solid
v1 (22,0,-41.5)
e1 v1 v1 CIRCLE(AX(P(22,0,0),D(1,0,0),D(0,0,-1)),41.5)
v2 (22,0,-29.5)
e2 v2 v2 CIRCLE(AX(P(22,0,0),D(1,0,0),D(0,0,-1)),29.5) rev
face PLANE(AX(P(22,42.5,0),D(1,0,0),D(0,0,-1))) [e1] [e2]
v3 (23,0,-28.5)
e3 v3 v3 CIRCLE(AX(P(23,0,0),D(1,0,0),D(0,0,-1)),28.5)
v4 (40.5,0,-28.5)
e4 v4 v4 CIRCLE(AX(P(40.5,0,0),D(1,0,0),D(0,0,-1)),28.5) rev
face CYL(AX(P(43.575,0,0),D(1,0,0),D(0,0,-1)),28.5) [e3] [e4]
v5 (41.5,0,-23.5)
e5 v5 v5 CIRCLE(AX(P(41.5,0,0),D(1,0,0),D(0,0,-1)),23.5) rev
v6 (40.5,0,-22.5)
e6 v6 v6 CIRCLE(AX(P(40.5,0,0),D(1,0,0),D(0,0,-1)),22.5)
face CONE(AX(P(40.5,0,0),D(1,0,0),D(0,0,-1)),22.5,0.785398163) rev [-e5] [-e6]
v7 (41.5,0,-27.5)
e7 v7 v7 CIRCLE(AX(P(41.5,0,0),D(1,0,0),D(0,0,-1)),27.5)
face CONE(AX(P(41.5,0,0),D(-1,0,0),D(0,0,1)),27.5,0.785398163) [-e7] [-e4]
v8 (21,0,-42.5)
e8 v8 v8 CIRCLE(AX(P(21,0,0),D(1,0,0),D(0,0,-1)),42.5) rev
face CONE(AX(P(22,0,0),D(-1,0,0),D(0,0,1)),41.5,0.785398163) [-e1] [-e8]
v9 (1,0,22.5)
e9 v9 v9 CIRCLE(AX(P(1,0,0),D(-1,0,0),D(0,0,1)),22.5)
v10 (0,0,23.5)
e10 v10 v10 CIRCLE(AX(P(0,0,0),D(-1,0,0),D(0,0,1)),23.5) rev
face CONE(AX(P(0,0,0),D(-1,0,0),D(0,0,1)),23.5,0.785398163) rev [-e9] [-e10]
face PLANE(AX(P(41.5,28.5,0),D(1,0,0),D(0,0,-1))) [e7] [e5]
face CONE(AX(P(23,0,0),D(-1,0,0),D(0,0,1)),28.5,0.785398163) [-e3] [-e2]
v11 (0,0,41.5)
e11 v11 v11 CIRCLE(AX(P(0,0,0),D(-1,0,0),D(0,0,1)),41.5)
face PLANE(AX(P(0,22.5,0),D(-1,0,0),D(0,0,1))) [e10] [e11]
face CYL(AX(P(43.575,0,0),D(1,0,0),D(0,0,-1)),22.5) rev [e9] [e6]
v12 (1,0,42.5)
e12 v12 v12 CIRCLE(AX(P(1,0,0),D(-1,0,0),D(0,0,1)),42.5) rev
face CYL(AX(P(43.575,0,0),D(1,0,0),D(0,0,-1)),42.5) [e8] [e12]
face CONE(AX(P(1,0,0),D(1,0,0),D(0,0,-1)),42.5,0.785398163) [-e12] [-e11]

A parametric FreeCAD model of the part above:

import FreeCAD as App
import Part
import Sketcher
Q = App.Units.Quantity


def edges_at(feature, points):
    """Names of the edges that pass closest to the given points."""
    edges = feature.Shape.Edges
    near = lambda p: min(range(len(edges)), key=lambda i: edges[i].distToShape(Part.Vertex(*p))[0])
    return sorted({f"Edge{near(p) + 1}" for p in points})


def add_polygon(sketch, points):
    """Adds a closed chain of lines whose ends are joined by coincident constraints."""
    first, n = sketch.GeometryCount, len(points)
    for a, b in zip(points, points[1:] + points[:1]):
        sketch.addGeometry(Part.LineSegment(App.Vector(*a, 0), App.Vector(*b, 0)), False)
    for i in range(n):
        sketch.addConstraint(Sketcher.Constraint("Coincident", first + i, 2, first + (i + 1) % n, 1))

doc = App.newDocument("Part")
params = doc.addObject("Spreadsheet::Sheet", "Params")
for row, (alias, value) in enumerate([
    ("sketch1_width", "22 mm"),
    ("sketch1_height", "20 mm"),
    ("sketch1_height2", "6 mm"),
    ("sketch1_width2", "41.5 mm"),
    ("revolution_angle", "360 deg"),
    ("chamfer_size", "1 mm"),
], start=1):
    params.set(f"A{row}", alias)
    params.set(f"B{row}", "=" + value)
    params.setAlias(f"B{row}", alias)

body = doc.addObject("PartDesign::Body", "Body")

# Sketch on XY plane
sketch1 = body.newObject("Sketcher::SketchObject", "Sketch")
sketch1.AttachmentSupport = (doc.getObject("XY_Plane"), [""])
sketch1.MapMode = "FlatFace"
add_polygon(sketch1, [(0, 42.5), (0, 22.5), (41.5, 22.5), (41.5, 28.5), (22, 28.5), (22, 42.5)])  # lines 0-5
sketch1.addConstraint([
    Sketcher.Constraint("Vertical", 0),
    Sketcher.Constraint("Horizontal", 1),
    Sketcher.Constraint("Vertical", 2),
    Sketcher.Constraint("Horizontal", 3),
    Sketcher.Constraint("Vertical", 4),
    Sketcher.Constraint("Horizontal", 5),
    Sketcher.Constraint("PointOnObject", 0, 2, -2),
    Sketcher.Constraint("DistanceX", 5, 2, 5, 1, Q("22 mm")),
    Sketcher.Constraint("DistanceY", 0, 2, 0, 1, Q("20 mm")),
    Sketcher.Constraint("DistanceY", 2, 1, 2, 2, Q("6 mm")),
    Sketcher.Constraint("DistanceX", 1, 1, 1, 2, Q("41.5 mm")),
    Sketcher.Constraint("DistanceY", -1, 1, 0, 2, Q("22.5 mm")),
])
sketch1.setExpression("Constraints[13]", "Params.sketch1_width")
sketch1.setExpression("Constraints[14]", "Params.sketch1_height")
sketch1.setExpression("Constraints[15]", "Params.sketch1_height2")
sketch1.setExpression("Constraints[16]", "Params.sketch1_width2")
revolution = body.newObject("PartDesign::Revolution", "Revolution")
revolution.Profile = sketch1
revolution.ReferenceAxis = (sketch1, ["H_Axis"])
revolution.setExpression("Angle", "Params.revolution_angle")
doc.recompute()

chamfer = body.newObject("PartDesign::Chamfer", "Chamfer")
chamfer.Base = (revolution, edges_at(revolution, [
    (0, -42.5, 0),
    (0, -22.5, 0),
    (41.5, -22.5, 0),
    (41.5, -28.5, 0),
    (22, -28.5, 0),
    (22, -42.5, 0),
]))
chamfer.setExpression("Size", "Params.chamfer_size")

doc.recompute()
